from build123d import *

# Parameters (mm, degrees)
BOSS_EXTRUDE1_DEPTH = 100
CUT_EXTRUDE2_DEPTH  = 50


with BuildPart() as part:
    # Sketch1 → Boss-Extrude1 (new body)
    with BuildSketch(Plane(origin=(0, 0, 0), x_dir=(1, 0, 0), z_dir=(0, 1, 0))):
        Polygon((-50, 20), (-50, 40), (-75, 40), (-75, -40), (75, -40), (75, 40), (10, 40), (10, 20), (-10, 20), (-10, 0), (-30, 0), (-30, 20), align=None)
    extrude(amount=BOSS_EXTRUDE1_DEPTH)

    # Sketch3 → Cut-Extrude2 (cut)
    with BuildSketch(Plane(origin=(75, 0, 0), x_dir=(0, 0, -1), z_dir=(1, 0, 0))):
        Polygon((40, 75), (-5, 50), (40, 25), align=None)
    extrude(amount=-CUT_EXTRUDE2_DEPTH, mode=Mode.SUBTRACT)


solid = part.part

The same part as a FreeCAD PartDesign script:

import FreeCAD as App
import Part
import Sketcher


def add_polygon(sketch, points):
    """Adds a closed chain of lines whose ends are joined by coincident constraints."""
    first, n = sketch.GeometryCount, len(points)
    for a, b in zip(points, points[1:] + points[:1]):
        sketch.addGeometry(Part.LineSegment(App.Vector(*a, 0), App.Vector(*b, 0)), False)
    for i in range(n):
        sketch.addConstraint(Sketcher.Constraint("Coincident", first + i, 2, first + (i + 1) % n, 1))

doc = App.newDocument("Part")
body = doc.addObject("PartDesign::Body", "Body")

sketch1 = body.newObject("Sketcher::SketchObject", "Sketch")
sketch1.AttachmentSupport = (doc.getObject("XZ_Plane"), [""])
sketch1.MapMode = "FlatFace"
add_polygon(sketch1, [(-50, -20), (-50, -40), (-75, -40), (-75, 40), (75, 40), (75, -40), (10, -40), (10, -20), (-10, -20), (-10, 0), (-30, 0), (-30, -20)])
sketch1.addConstraint([
    Sketcher.Constraint("Vertical", 0),
    Sketcher.Constraint("Horizontal", 1),
    Sketcher.Constraint("Vertical", 2),
    Sketcher.Constraint("Horizontal", 3),
    Sketcher.Constraint("Vertical", 4),
    Sketcher.Constraint("Horizontal", 5),
    Sketcher.Constraint("Vertical", 6),
    Sketcher.Constraint("Horizontal", 7),
    Sketcher.Constraint("Vertical", 8),
    Sketcher.Constraint("Horizontal", 9),
    Sketcher.Constraint("Vertical", 10),
    Sketcher.Constraint("Horizontal", 11),
    Sketcher.Constraint("Symmetric", 1, 2, 3, 2, -1, 1),
    Sketcher.Constraint("PointOnObject", 8, 2, -1),
    Sketcher.Constraint("Horizontal", 1, 2, 4, 2),
    Sketcher.Constraint("Horizontal", 7, 2, 10, 2),
    Sketcher.Constraint("Equal", 7, 9),
    Sketcher.Constraint("Equal", 9, 11),
    Sketcher.Constraint("Equal", 11, 0),
    Sketcher.Constraint("Equal", 6, 8),
    Sketcher.Constraint("DistanceX", 1, 2, 1, 1, 25.0),
    Sketcher.Constraint("DistanceX", 3, 1, 3, 2, 150.0),
    Sketcher.Constraint("DistanceX", 5, 2, 5, 1, 65.0),
])
pad1 = body.newObject("PartDesign::Pad", "Pad")
pad1.Profile = sketch1
pad1.Length = 100
pad1.Reversed = True

sketch2 = body.newObject("Sketcher::SketchObject", "Sketch001")
sketch2.AttachmentSupport = (doc.getObject("YZ_Plane"), [""])
sketch2.MapMode = "FlatFace"
sketch2.AttachmentOffset = App.Placement(App.Vector(0, 0, 75), App.Rotation())
add_polygon(sketch2, [(75, -40), (50, 5), (25, -40)])
sketch2.addConstraint([
    Sketcher.Constraint("Horizontal", 2),
    Sketcher.Constraint("Equal", 0, 1),
    Sketcher.Constraint("DistanceX", 2, 1, 2, 2, 50.0),
    Sketcher.Constraint("DistanceX", -1, 1, 0, 2, 50.0),
    Sketcher.Constraint("DistanceY", -1, 1, 0, 2, 5.0),
    Sketcher.Constraint("DistanceY", 1, 2, -1, 1, 40.0),
])
pocket1 = body.newObject("PartDesign::Pocket", "Pocket")
pocket1.Profile = sketch2
pocket1.Length = 50

doc.recompute()
